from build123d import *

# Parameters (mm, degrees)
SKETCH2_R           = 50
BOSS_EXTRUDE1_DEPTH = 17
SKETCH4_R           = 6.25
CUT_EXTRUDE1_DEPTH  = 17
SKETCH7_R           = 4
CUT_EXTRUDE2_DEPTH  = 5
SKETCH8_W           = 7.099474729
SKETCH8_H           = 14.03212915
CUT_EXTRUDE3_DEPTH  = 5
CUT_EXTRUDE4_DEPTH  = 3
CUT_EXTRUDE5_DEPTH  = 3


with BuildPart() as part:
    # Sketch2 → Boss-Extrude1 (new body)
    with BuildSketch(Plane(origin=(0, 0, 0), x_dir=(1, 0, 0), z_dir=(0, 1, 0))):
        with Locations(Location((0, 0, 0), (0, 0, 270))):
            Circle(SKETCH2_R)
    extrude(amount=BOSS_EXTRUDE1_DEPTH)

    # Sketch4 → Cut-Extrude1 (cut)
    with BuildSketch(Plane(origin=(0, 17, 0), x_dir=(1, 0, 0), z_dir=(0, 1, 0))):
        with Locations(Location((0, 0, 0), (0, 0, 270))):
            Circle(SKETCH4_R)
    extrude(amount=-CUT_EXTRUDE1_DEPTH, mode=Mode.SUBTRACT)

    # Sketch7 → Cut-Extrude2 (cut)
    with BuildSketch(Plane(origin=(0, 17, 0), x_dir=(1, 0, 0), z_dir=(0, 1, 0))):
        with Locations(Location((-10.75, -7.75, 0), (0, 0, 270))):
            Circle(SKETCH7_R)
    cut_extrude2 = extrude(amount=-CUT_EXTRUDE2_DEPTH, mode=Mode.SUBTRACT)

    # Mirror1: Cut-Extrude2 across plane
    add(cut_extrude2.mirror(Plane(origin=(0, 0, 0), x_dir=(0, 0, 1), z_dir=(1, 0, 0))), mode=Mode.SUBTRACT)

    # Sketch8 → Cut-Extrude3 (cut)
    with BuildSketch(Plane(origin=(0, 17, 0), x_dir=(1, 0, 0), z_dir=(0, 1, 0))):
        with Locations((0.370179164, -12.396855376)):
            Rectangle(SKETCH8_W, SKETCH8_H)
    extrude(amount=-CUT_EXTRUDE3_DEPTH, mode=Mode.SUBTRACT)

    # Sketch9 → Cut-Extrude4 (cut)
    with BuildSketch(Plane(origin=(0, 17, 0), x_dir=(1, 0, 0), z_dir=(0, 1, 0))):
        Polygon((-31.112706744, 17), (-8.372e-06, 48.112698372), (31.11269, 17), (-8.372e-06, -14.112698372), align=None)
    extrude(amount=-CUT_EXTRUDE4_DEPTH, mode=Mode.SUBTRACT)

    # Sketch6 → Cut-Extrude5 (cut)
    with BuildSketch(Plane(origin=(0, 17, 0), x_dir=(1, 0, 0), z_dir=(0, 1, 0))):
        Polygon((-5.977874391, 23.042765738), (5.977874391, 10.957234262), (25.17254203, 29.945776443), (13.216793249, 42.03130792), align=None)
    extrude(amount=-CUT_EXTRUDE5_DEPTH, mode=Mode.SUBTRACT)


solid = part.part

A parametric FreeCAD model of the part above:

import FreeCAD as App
import Part
import Sketcher
Q = App.Units.Quantity


def add_polygon(sketch, points):
    """Adds a closed chain of lines whose ends are joined by coincident constraints."""
    first, n = sketch.GeometryCount, len(points)
    for a, b in zip(points, points[1:] + points[:1]):
        sketch.addGeometry(Part.LineSegment(App.Vector(*a, 0), App.Vector(*b, 0)), False)
    for i in range(n):
        sketch.addConstraint(Sketcher.Constraint("Coincident", first + i, 2, first + (i + 1) % n, 1))

doc = App.newDocument("Part")
body = doc.addObject("PartDesign::Body", "Body")

sketch1 = doc.addObject("Sketcher::SketchObject", "Sketch")
body.addObject(sketch1)
sketch1.AttachmentSupport = (doc.XZ_Plane, [""])
sketch1.MapMode = "FlatFace"
sketch1.addGeometry(Part.Circle(App.Vector(0, 0, 0), App.Vector(0, 0, 1), 50), False)
sketch1.addConstraint(Sketcher.Constraint("Coincident", 0, 3, -1, 1))
sketch1.addConstraint(Sketcher.Constraint("Diameter", 0, Q("100 mm")))
pad1 = doc.addObject("PartDesign::Pad", "Pad")
body.addObject(pad1)
pad1.Profile = sketch1
pad1.Length = 17
pad1.Reversed = True

sketch2 = doc.addObject("Sketcher::SketchObject", "Sketch001")
body.addObject(sketch2)
sketch2.AttachmentSupport = (doc.XZ_Plane, [""])
sketch2.MapMode = "FlatFace"
sketch2.AttachmentOffset = App.Placement(App.Vector(0, 0, -17), App.Rotation())
sketch2.addGeometry(Part.Circle(App.Vector(0, 0, 0), App.Vector(0, 0, 1), 6.25), False)
sketch2.addConstraint(Sketcher.Constraint("Coincident", 0, 3, -1, 1))
sketch2.addConstraint(Sketcher.Constraint("Diameter", 0, Q("12.5 mm")))
pocket1 = doc.addObject("PartDesign::Pocket", "Pocket")
body.addObject(pocket1)
pocket1.Profile = sketch2
pocket1.Length = 17
pocket1.Reversed = True

sketch3 = doc.addObject("Sketcher::SketchObject", "Sketch002")
body.addObject(sketch3)
sketch3.AttachmentSupport = (doc.XZ_Plane, [""])
sketch3.MapMode = "FlatFace"
sketch3.AttachmentOffset = App.Placement(App.Vector(0, 0, -17), App.Rotation())
sketch3.addGeometry(Part.Circle(App.Vector(-10.75, 7.75, 0), App.Vector(0, 0, 1), 4), False)
sketch3.addConstraint(Sketcher.Constraint("Diameter", 0, Q("8 mm")))
sketch3.addConstraint(Sketcher.Constraint("DistanceX", 0, 3, -1, 1, Q("10.75 mm")))
sketch3.addConstraint(Sketcher.Constraint("DistanceY", -1, 1, 0, 3, Q("7.75 mm")))
pocket2 = doc.addObject("PartDesign::Pocket", "Pocket001")
body.addObject(pocket2)
pocket2.Profile = sketch3
pocket2.Length = 5
pocket2.Reversed = True
doc.recompute()

mirrored = doc.addObject("PartDesign::Mirrored", "Mirrored")
body.addObject(mirrored)
mirrored.Originals = [pocket2]
mirrored.MirrorPlane = (doc.YZ_Plane, [""])
body.Tip = mirrored

sketch4 = doc.addObject("Sketcher::SketchObject", "Sketch003")
body.addObject(sketch4)
sketch4.AttachmentSupport = (doc.XZ_Plane, [""])
sketch4.MapMode = "FlatFace"
sketch4.AttachmentOffset = App.Placement(App.Vector(0, 0, -17), App.Rotation())
add_polygon(sketch4, [(-3.179558, 5.380791), (-3.179558, 19.41292), (3.919917, 19.41292), (3.919917, 5.380791)])
sketch4.addConstraint(Sketcher.Constraint("Vertical", 0))
sketch4.addConstraint(Sketcher.Constraint("Horizontal", 1))
sketch4.addConstraint(Sketcher.Constraint("Vertical", 2))
sketch4.addConstraint(Sketcher.Constraint("Horizontal", 3))
sketch4.addConstraint(Sketcher.Constraint("DistanceY", 0, 1, 0, 2, Q("14.032129 mm")))
sketch4.addConstraint(Sketcher.Constraint("DistanceX", 1, 1, 1, 2, Q("7.099475 mm")))
sketch4.addConstraint(Sketcher.Constraint("DistanceX", 0, 2, -1, 1, Q("3.179558 mm")))
sketch4.addConstraint(Sketcher.Constraint("DistanceY", -1, 1, 0, 2, Q("19.41292 mm")))
pocket3 = doc.addObject("PartDesign::Pocket", "Pocket002")
body.addObject(pocket3)
pocket3.Profile = sketch4
pocket3.Length = 5
pocket3.Reversed = True

sketch5 = doc.addObject("Sketcher::SketchObject", "Sketch004")
body.addObject(sketch5)
sketch5.AttachmentSupport = (doc.XZ_Plane, [""])
sketch5.MapMode = "FlatFace"
sketch5.AttachmentOffset = App.Placement(App.Vector(0, 0, -17), App.Rotation())
add_polygon(sketch5, [(-0.000008, -48.112698), (-31.112707, -17), (-0.000008, 14.112698), (31.11269, -17)])
sketch5.addConstraint(Sketcher.Constraint("Perpendicular", 0, 1))
sketch5.addConstraint(Sketcher.Constraint("Perpendicular", 1, 2))
sketch5.addConstraint(Sketcher.Constraint("Perpendicular", 2, 3))
sketch5.addConstraint(Sketcher.Constraint("Horizontal", 0, 2, 2, 2))
sketch5.addConstraint(Sketcher.Constraint("Vertical", 1, 2, 3, 2))
sketch5.addConstraint(Sketcher.Constraint("Distance", 0, Q("44 mm")))
sketch5.addConstraint(Sketcher.Constraint("DistanceY", 0, 2, -1, 1, Q("17 mm")))
sketch5.addConstraint(Sketcher.Constraint("DistanceX", -1, 1, 2, 2, Q("31.11269 mm")))
pocket4 = doc.addObject("PartDesign::Pocket", "Pocket003")
body.addObject(pocket4)
pocket4.Profile = sketch5
pocket4.Length = 3
pocket4.Reversed = True

sketch6 = doc.addObject("Sketcher::SketchObject", "Sketch005")
body.addObject(sketch6)
sketch6.AttachmentSupport = (doc.XZ_Plane, [""])
sketch6.MapMode = "FlatFace"
sketch6.AttachmentOffset = App.Placement(App.Vector(0, 0, -17), App.Rotation())
add_polygon(sketch6, [(-5.977874, -23.042766), (5.977874, -10.957234), (25.172542, -29.945776), (13.216793, -42.031308)])
sketch6.addConstraint(Sketcher.Constraint("Perpendicular", 0, 1))
sketch6.addConstraint(Sketcher.Constraint("Perpendicular", 1, 2))
sketch6.addConstraint(Sketcher.Constraint("Perpendicular", 2, 3))
sketch6.addConstraint(Sketcher.Constraint("Distance", 0, Q("17 mm")))
sketch6.addConstraint(Sketcher.Constraint("Distance", 1, Q("27 mm")))
sketch6.addConstraint(Sketcher.Constraint("DistanceX", 2, 2, 1, 2, Q("11.955749 mm")))
sketch6.addConstraint(Sketcher.Constraint("DistanceX", -1, 1, 0, 2, Q("5.977874 mm")))
sketch6.addConstraint(Sketcher.Constraint("DistanceY", 0, 2, -1, 1, Q("10.957234 mm")))
pocket5 = doc.addObject("PartDesign::Pocket", "Pocket004")
body.addObject(pocket5)
pocket5.Profile = sketch6
pocket5.Length = 3
pocket5.Reversed = True

doc.recompute()
